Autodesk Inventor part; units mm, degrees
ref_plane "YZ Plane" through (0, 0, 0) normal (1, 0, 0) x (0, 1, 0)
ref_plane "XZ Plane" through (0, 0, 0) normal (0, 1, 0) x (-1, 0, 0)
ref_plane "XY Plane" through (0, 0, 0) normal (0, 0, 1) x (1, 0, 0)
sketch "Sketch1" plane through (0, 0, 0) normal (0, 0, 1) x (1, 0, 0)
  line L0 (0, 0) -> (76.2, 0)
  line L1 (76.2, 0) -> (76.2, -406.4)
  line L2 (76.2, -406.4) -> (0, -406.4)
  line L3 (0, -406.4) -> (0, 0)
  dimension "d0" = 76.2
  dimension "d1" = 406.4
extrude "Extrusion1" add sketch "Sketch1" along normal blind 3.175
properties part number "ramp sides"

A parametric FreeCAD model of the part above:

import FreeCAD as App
import Part
import Sketcher
Q = App.Units.Quantity

doc = App.newDocument("Part")
body = doc.addObject("PartDesign::Body", "Body")

# Sketch on XY plane
sketch1 = body.newObject("Sketcher::SketchObject", "Sketch")
sketch1.AttachmentSupport = (doc.getObject("XY_Plane"), [""])
sketch1.MapMode = "FlatFace"
sketch1.addGeometry([
    Part.LineSegment(App.Vector(76, 0, 0), App.Vector(0, 0, 0)),
    Part.LineSegment(App.Vector(0, 0, 0), App.Vector(0, -406, 0)),
    Part.LineSegment(App.Vector(0, -406, 0), App.Vector(76, -406, 0)),
    Part.LineSegment(App.Vector(76, -406, 0), App.Vector(76, 0, 0)),
], False)
sketch1.addConstraint([
    Sketcher.Constraint("Coincident", 0, 2, 1, 1),
    Sketcher.Constraint("Coincident", 1, 2, 2, 1),
    Sketcher.Constraint("Coincident", 2, 2, 3, 1),
    Sketcher.Constraint("Coincident", 3, 2, 0, 1),
    Sketcher.Constraint("Horizontal", 0),
    Sketcher.Constraint("Vertical", 1),
    Sketcher.Constraint("Horizontal", 2),
    Sketcher.Constraint("Vertical", 3),
    Sketcher.Constraint("Coincident", 0, 2, -1, 1),
    Sketcher.Constraint("DistanceX", 0, 2, 0, 1, Q("3 in")),
    Sketcher.Constraint("DistanceY", 1, 2, 1, 1, Q("16 in")),
])
pad1 = body.newObject("PartDesign::Pad", "Pad")
pad1.Profile = sketch1
pad1.Length = Q("0.125 in")

doc.recompute()
